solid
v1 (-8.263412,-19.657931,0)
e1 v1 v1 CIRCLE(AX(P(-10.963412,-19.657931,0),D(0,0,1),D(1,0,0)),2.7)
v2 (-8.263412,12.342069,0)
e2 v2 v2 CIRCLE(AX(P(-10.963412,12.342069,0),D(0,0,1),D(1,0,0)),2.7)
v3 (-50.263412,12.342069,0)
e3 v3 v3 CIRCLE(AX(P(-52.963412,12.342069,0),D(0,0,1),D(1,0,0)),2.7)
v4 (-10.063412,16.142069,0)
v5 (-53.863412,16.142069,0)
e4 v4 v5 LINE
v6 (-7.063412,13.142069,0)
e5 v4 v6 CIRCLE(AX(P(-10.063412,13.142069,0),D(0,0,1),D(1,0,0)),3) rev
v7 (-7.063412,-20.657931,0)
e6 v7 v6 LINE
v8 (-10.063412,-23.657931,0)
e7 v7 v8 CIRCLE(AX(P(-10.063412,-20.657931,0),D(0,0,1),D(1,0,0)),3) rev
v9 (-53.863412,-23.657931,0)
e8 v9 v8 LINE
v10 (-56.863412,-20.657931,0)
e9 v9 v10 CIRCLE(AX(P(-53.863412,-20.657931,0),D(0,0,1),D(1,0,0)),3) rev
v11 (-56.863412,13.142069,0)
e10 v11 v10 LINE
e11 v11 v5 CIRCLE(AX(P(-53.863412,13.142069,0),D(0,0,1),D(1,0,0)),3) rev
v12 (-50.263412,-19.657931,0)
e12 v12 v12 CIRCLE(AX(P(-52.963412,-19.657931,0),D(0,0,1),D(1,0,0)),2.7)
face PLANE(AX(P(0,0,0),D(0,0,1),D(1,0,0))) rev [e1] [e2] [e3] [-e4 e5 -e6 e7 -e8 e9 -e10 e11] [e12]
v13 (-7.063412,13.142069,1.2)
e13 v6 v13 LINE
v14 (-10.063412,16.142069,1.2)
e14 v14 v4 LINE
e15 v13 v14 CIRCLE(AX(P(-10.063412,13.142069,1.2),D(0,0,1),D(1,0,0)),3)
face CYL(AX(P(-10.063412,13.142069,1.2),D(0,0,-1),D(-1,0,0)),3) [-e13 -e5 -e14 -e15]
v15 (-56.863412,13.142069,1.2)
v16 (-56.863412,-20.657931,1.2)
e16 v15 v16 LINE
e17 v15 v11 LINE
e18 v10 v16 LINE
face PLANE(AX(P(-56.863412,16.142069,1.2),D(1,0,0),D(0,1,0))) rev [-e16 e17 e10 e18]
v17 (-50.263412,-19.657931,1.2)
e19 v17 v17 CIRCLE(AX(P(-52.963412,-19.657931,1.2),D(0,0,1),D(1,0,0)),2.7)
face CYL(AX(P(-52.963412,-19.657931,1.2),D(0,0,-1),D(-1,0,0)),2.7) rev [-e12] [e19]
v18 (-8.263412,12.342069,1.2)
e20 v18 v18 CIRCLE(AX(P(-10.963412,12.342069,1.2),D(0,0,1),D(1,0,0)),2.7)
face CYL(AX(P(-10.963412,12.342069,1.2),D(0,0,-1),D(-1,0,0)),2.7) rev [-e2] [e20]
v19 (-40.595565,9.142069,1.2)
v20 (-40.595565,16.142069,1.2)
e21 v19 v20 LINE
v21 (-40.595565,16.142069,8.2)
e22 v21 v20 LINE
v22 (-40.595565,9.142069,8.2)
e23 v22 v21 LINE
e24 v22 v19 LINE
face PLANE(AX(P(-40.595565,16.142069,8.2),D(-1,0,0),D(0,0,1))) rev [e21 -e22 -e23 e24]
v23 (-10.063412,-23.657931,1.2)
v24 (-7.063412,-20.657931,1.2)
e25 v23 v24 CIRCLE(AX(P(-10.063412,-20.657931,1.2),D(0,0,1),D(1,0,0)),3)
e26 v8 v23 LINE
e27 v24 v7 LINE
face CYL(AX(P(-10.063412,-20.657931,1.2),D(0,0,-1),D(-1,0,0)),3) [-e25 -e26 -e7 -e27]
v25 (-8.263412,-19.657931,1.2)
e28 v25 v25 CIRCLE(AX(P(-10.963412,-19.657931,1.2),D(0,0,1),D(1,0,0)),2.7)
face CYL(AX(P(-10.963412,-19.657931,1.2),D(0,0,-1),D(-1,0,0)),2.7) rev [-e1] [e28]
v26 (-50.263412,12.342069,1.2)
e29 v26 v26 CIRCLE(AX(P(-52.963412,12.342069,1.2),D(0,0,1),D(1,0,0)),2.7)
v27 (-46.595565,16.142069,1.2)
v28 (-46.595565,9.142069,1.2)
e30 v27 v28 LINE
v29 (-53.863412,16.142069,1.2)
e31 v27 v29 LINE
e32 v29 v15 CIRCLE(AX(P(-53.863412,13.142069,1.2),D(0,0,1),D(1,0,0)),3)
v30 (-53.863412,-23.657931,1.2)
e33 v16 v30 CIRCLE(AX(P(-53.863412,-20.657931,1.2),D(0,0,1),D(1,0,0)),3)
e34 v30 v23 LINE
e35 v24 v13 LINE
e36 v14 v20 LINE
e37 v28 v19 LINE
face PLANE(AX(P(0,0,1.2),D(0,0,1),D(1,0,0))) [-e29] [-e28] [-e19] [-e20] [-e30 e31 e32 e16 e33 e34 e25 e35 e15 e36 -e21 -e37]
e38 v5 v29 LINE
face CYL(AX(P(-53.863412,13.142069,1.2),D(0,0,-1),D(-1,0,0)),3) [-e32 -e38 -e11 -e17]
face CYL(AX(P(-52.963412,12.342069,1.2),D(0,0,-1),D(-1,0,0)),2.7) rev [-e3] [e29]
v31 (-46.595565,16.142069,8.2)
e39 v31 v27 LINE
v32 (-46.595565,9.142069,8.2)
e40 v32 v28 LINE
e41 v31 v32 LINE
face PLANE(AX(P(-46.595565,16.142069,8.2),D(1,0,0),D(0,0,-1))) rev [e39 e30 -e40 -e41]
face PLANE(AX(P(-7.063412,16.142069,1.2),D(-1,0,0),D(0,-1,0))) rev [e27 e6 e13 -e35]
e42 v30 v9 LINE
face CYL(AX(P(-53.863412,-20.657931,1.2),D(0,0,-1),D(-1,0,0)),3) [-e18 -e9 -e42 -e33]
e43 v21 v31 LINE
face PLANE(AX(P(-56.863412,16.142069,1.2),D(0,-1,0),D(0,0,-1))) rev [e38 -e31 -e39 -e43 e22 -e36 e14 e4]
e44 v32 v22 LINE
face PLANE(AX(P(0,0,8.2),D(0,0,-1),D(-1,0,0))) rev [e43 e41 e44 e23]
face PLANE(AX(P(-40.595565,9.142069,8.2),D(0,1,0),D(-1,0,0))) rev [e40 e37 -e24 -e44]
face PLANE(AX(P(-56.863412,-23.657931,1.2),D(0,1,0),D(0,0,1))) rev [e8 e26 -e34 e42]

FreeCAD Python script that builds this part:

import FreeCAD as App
import Part
import Sketcher
from FreeCAD import Vector
Q = App.Units.Quantity


def edges_at(feature, points):
    """Names of the edges that pass closest to the given points."""
    edges = feature.Shape.Edges
    near = lambda p: min(range(len(edges)), key=lambda i: edges[i].distToShape(Part.Vertex(*p))[0])
    return sorted({f"Edge{near(p) + 1}" for p in points})


def add_polygon(sketch, points):
    """Adds a closed chain of lines whose ends are joined by coincident constraints."""
    first, n = sketch.GeometryCount, len(points)
    for a, b in zip(points, points[1:] + points[:1]):
        sketch.addGeometry(Part.LineSegment(App.Vector(*a, 0), App.Vector(*b, 0)), False)
    for i in range(n):
        sketch.addConstraint(Sketcher.Constraint("Coincident", first + i, 2, first + (i + 1) % n, 1))

doc = App.newDocument("Part")
body = doc.addObject("PartDesign::Body", "Body")

# Sketch on XY plane
sketch1 = doc.addObject("Sketcher::SketchObject", "Sketch")
body.addObject(sketch1)
sketch1.AttachmentSupport = (doc.XY_Plane, [""])
sketch1.MapMode = "FlatFace"
add_polygon(sketch1, [(-56.9, 16.1), (-56.9, -23.7), (-7.1, -23.7), (-7.1, 16.1)])  # lines 0-3
sketch1.addGeometry(Part.Circle(Vector(-53, -19.7, 0), Vector(0, 0, 1), 2.7), False)  # 4
sketch1.addGeometry(Part.Circle(Vector(-11, -19.7, 0), Vector(0, 0, 1), 2.7), False)  # 5
sketch1.addGeometry(Part.Circle(Vector(-53, 12.3, 0), Vector(0, 0, 1), 2.7), False)  # 6
sketch1.addGeometry(Part.Circle(Vector(-11, 12.3, 0), Vector(0, 0, 1), 2.7), False)  # 7
sketch1.addConstraint(Sketcher.Constraint("Vertical", 0))
sketch1.addConstraint(Sketcher.Constraint("Horizontal", 1))
sketch1.addConstraint(Sketcher.Constraint("Vertical", 2))
sketch1.addConstraint(Sketcher.Constraint("Horizontal", 3))
sketch1.addConstraint(Sketcher.Constraint("Equal", 4, 5))
sketch1.addConstraint(Sketcher.Constraint("Equal", 5, 6))
sketch1.addConstraint(Sketcher.Constraint("Equal", 6, 7))
sketch1.addConstraint(Sketcher.Constraint("Horizontal", 4, 3, 5, 3))
sketch1.addConstraint(Sketcher.Constraint("Horizontal", 6, 3, 7, 3))
sketch1.addConstraint(Sketcher.Constraint("Vertical", 4, 3, 6, 3))
sketch1.addConstraint(Sketcher.Constraint("Vertical", 5, 3, 7, 3))
sketch1.addConstraint(Sketcher.Constraint("Diameter", 4, Q("5.4 mm")))
sketch1.addConstraint(Sketcher.Constraint("DistanceX", 1, 1, 1, 2, Q("49.8 mm")))
sketch1.addConstraint(Sketcher.Constraint("DistanceY", 0, 2, 0, 1, Q("39.8 mm")))
sketch1.addConstraint(Sketcher.Constraint("DistanceX", 4, 3, 5, 3, Q("42 mm")))
sketch1.addConstraint(Sketcher.Constraint("DistanceY", 4, 3, 6, 3, Q("32 mm")))
sketch1.addConstraint(Sketcher.Constraint("DistanceY", 0, 2, 4, 3, Q("4 mm")))
sketch1.addConstraint(Sketcher.Constraint("DistanceX", 0, 2, 4, 3, Q("3.9 mm")))
sketch1.addConstraint(Sketcher.Constraint("DistanceY", 4, 3, -1, 1, Q("19.657931 mm")))
sketch1.addConstraint(Sketcher.Constraint("DistanceX", 4, 3, -1, 1, Q("52.963412 mm")))
pad1 = doc.addObject("PartDesign::Pad", "Pad")
body.addObject(pad1)
pad1.Profile = sketch1
pad1.Length = 1.2
doc.recompute()

fillet = doc.addObject("PartDesign::Fillet", "Fillet")
body.addObject(fillet)
fillet.Base = (pad1, edges_at(pad1, [
    (-56.863, 16.142, 0.6),
    (-7.063, 16.142, 0.6),
    (-7.063, -23.658, 0.6),
    (-56.863, -23.658, 0.6),
]))
fillet.Radius = 3

# Sketch on XY plane
sketch2 = doc.addObject("Sketcher::SketchObject", "Sketch001")
body.addObject(sketch2)
sketch2.AttachmentSupport = (doc.XY_Plane, [""])
sketch2.MapMode = "FlatFace"
sketch2.AttachmentOffset = App.Placement(Vector(0, 0, 1.2), App.Rotation())
add_polygon(sketch2, [(-47, 16), (-47, 9), (-41, 9), (-41, 16)])  # lines 0-3
sketch2.addConstraint(Sketcher.Constraint("Vertical", 0))
sketch2.addConstraint(Sketcher.Constraint("Horizontal", 1))
sketch2.addConstraint(Sketcher.Constraint("Vertical", 2))
sketch2.addConstraint(Sketcher.Constraint("Horizontal", 3))
sketch2.addConstraint(Sketcher.Constraint("DistanceX", 1, 1, 1, 2, Q("6 mm")))
sketch2.addConstraint(Sketcher.Constraint("DistanceY", 0, 2, 0, 1, Q("7 mm")))
sketch2.addConstraint(Sketcher.Constraint("DistanceY", -1, 1, 0, 2, Q("9.142069 mm")))
sketch2.addConstraint(Sketcher.Constraint("DistanceX", 0, 2, -1, 1, Q("46.595565 mm")))
pad2 = doc.addObject("PartDesign::Pad", "Pad001")
body.addObject(pad2)
pad2.Profile = sketch2
pad2.Length = 7

doc.recompute()
